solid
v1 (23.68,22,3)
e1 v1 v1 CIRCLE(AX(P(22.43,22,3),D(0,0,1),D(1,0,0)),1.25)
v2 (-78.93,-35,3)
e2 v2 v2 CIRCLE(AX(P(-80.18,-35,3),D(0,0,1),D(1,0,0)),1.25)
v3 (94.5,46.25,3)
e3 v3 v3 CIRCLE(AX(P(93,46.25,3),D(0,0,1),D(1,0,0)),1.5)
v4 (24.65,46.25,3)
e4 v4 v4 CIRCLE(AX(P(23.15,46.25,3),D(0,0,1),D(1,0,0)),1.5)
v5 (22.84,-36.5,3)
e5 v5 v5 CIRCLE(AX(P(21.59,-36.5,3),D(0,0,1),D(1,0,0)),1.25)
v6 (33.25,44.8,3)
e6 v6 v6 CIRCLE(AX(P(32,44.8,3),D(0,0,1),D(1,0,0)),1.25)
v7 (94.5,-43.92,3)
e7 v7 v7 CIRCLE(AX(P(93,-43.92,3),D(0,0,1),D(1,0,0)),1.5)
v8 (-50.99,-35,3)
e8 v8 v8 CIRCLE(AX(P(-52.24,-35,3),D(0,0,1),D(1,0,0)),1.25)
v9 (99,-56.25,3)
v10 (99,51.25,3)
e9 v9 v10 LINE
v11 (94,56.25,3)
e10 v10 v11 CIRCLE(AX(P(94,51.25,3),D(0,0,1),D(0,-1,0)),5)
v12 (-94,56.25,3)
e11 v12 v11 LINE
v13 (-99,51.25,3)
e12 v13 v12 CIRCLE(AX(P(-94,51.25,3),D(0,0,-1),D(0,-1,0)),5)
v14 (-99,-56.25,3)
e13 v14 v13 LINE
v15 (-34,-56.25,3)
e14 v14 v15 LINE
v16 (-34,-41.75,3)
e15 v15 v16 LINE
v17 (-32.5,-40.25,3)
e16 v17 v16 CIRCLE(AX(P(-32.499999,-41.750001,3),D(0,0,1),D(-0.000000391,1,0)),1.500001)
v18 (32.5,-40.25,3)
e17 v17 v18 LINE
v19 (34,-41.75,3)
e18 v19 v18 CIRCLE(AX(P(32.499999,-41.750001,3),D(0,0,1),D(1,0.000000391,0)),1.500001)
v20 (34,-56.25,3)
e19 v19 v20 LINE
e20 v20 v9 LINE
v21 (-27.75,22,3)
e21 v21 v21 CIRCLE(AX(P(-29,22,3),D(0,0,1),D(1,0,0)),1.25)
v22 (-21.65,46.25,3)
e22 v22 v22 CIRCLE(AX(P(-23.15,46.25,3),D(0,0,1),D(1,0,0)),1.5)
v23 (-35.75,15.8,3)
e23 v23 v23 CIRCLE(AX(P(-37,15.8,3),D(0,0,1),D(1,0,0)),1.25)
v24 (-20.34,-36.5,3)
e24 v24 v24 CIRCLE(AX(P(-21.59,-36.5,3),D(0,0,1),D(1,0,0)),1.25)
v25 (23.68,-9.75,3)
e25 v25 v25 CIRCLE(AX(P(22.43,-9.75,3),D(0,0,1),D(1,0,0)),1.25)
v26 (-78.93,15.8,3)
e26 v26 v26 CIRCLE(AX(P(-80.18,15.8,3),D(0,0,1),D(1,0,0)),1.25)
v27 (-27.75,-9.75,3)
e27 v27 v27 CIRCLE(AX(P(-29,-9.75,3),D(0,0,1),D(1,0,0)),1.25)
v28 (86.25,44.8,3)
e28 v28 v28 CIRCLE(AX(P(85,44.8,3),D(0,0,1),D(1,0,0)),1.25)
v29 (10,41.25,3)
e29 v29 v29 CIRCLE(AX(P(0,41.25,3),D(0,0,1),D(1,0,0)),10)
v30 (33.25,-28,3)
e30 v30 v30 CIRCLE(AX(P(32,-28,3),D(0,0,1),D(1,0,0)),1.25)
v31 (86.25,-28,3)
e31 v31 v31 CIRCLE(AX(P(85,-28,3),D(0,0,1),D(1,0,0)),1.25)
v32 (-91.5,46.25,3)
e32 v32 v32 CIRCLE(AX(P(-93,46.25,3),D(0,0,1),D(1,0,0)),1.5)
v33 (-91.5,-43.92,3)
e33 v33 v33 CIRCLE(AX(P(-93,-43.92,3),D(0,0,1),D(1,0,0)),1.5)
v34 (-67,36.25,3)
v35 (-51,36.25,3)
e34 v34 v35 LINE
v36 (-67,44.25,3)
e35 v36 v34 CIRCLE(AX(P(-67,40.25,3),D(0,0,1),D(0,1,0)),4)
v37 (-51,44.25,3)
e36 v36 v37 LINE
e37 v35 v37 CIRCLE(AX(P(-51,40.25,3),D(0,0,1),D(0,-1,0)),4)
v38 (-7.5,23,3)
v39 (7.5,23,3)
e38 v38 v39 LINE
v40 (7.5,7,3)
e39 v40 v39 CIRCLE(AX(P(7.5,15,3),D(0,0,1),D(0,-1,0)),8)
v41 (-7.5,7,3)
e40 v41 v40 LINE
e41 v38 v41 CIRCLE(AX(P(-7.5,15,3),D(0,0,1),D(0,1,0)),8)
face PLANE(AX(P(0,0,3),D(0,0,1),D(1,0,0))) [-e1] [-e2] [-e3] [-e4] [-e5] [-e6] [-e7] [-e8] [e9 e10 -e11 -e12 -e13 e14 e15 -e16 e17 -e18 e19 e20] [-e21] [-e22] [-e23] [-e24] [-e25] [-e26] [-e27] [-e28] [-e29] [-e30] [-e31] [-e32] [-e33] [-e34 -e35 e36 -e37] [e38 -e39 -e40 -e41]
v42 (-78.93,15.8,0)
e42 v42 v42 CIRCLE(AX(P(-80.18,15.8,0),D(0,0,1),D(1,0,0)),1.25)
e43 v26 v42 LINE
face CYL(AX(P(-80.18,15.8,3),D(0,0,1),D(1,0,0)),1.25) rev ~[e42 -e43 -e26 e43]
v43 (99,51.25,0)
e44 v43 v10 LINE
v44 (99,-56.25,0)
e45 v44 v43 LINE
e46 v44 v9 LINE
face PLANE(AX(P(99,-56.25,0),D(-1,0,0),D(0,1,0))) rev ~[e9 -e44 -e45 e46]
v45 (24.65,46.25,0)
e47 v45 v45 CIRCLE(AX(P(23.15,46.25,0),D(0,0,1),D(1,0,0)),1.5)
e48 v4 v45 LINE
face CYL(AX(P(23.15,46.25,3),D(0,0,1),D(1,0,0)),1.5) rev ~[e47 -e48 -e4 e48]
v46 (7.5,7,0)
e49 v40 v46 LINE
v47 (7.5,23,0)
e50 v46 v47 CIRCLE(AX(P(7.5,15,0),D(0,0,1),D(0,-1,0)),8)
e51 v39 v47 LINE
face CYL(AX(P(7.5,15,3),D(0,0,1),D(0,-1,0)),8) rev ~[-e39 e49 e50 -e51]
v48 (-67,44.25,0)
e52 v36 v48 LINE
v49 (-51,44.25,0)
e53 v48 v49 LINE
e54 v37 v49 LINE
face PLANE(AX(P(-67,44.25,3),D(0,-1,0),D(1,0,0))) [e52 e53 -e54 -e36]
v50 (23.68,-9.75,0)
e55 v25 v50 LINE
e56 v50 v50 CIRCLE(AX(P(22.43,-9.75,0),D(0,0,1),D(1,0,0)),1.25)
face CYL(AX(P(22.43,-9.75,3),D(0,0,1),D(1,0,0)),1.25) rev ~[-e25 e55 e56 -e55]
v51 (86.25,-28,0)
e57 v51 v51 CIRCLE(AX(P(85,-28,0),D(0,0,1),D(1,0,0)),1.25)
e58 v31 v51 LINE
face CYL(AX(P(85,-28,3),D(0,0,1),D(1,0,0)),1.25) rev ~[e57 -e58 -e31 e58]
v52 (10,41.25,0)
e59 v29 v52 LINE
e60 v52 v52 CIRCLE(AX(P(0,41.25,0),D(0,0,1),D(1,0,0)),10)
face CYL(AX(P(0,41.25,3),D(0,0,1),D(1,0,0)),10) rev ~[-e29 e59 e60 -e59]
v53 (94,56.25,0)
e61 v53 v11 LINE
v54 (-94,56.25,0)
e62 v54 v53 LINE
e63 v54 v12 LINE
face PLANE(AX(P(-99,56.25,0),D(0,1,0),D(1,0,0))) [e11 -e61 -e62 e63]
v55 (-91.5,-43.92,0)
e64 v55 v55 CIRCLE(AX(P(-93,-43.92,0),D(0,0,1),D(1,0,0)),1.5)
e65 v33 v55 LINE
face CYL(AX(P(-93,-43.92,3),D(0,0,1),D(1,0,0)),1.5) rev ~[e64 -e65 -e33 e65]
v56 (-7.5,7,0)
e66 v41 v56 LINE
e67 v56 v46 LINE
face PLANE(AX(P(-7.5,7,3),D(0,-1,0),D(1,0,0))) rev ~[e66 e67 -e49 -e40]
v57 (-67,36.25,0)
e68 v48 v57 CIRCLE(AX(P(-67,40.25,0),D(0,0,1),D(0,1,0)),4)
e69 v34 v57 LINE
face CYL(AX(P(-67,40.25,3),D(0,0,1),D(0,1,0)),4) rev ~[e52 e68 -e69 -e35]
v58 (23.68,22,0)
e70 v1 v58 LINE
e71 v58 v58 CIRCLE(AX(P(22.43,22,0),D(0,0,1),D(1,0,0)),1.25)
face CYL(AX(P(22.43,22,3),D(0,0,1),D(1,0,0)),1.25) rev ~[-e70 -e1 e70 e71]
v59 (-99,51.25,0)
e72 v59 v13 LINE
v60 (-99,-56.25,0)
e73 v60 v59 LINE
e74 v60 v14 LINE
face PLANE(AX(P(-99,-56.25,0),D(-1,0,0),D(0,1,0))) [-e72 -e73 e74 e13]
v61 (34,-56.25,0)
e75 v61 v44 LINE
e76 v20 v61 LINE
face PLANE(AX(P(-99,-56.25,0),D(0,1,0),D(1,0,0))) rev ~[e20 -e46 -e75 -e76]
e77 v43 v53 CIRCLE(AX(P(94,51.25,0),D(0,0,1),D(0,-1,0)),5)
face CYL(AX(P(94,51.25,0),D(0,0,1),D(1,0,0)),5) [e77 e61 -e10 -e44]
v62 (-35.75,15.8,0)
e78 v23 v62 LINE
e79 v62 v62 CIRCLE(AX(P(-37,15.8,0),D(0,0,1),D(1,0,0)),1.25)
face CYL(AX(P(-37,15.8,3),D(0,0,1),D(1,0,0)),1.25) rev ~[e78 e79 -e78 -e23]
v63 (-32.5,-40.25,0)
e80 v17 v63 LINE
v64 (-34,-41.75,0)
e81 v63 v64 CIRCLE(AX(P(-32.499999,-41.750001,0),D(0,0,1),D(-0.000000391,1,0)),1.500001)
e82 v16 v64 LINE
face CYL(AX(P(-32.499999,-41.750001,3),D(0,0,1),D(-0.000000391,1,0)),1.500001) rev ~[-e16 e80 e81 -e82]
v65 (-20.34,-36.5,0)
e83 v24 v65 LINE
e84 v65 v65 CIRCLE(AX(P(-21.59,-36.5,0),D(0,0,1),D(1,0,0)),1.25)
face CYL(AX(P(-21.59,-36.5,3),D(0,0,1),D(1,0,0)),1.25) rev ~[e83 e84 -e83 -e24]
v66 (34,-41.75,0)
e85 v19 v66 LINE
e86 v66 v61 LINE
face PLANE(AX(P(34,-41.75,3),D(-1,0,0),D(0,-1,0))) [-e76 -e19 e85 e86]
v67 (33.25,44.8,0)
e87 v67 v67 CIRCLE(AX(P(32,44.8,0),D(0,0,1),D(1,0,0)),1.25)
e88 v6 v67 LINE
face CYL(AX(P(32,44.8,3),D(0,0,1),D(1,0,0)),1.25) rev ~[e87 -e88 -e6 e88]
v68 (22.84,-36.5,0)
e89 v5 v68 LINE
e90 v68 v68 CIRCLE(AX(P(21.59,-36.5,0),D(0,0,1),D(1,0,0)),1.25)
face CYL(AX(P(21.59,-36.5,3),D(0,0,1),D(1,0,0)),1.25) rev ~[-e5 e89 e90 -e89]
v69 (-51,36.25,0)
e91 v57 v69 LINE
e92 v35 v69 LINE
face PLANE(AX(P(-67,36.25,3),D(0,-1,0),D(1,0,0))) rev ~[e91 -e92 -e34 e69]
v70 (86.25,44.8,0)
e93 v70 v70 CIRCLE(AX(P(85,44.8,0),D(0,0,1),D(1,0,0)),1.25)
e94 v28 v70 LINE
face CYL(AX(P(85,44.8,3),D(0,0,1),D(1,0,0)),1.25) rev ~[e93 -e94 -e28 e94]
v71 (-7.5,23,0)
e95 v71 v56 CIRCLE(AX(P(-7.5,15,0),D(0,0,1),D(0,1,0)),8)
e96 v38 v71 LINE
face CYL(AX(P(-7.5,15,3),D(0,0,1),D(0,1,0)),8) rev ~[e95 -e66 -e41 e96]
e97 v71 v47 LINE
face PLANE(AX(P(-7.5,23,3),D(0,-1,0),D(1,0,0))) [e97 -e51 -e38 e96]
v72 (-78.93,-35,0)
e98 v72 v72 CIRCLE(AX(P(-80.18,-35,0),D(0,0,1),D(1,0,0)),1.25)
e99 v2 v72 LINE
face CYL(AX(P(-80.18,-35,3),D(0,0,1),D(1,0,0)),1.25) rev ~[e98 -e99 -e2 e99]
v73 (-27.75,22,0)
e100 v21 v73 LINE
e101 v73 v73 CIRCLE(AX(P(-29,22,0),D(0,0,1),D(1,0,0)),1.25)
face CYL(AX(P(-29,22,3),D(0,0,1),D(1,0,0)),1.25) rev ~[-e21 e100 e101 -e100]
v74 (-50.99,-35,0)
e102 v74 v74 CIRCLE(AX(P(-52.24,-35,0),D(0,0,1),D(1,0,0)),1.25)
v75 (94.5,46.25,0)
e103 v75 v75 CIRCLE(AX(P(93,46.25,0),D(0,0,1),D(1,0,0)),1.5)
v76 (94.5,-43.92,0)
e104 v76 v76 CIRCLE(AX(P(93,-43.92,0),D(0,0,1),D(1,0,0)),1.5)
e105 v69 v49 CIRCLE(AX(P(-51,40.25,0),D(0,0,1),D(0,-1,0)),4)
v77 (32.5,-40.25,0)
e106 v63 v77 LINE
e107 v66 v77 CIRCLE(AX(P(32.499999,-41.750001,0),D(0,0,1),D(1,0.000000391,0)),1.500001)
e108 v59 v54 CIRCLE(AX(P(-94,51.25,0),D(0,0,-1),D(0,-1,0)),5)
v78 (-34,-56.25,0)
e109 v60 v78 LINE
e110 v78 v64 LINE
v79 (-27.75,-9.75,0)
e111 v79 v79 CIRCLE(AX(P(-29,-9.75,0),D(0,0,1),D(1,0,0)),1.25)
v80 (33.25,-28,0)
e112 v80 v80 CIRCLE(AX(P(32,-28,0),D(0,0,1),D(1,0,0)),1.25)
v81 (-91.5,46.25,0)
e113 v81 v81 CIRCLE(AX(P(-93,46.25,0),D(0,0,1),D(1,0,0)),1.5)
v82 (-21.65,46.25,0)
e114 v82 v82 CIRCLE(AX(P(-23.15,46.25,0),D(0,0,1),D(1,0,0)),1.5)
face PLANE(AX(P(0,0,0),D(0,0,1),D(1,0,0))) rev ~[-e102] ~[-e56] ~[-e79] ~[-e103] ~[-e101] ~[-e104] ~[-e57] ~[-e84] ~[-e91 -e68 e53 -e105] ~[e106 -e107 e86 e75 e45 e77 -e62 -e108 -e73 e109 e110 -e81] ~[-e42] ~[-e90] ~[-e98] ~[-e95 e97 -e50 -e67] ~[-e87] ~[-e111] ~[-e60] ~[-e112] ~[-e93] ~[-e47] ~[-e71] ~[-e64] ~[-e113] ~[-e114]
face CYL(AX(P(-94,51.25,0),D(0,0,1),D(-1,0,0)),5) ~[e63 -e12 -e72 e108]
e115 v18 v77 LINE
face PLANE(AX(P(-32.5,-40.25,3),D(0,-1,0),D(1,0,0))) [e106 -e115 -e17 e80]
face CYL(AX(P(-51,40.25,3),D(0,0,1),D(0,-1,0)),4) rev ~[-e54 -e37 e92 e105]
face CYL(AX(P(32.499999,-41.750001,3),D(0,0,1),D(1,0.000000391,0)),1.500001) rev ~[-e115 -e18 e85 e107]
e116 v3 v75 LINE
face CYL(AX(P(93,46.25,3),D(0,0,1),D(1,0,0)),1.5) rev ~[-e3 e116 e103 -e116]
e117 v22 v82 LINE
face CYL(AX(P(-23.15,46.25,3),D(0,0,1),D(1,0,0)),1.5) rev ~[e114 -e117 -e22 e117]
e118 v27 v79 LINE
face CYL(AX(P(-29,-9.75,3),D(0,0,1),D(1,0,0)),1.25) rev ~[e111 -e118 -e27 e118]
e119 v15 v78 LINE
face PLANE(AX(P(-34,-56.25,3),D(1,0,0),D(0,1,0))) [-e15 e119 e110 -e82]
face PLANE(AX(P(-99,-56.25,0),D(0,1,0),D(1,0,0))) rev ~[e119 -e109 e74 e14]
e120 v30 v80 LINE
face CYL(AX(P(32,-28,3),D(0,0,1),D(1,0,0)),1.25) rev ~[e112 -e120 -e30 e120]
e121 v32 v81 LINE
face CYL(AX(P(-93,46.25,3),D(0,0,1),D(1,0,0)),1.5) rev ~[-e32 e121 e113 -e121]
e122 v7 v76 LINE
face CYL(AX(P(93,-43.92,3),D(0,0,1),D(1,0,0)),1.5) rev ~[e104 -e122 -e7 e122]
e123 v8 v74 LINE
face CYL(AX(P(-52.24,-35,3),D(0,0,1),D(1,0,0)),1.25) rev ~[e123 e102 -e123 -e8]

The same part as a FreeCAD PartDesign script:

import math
import FreeCAD as App
import Part
import Sketcher

V = App.Vector
Q = App.Units.Quantity


def edges_at(feature, points):
    """Names of the edges that pass closest to the given points."""
    edges = feature.Shape.Edges
    near = lambda p: min(range(len(edges)), key=lambda i: edges[i].distToShape(Part.Vertex(*p))[0])
    return sorted({f"Edge{near(p) + 1}" for p in points})

doc = App.newDocument("Part")
body = doc.addObject("PartDesign::Body", "Body")

# Sketch on XY plane
sketch1 = body.newObject("Sketcher::SketchObject", "Sketch")
sketch1.AttachmentSupport = (doc.getObject("XY_Plane"), [""])
sketch1.MapMode = "FlatFace"
sketch1.addGeometry([
    Part.LineSegment(V(-99, 56.25, 0), V(-99, -56.25, 0)),
    Part.LineSegment(V(-99, -56.25, 0), V(99, -56.25, 0)),
    Part.LineSegment(V(99, -56.25, 0), V(99, 56.25, 0)),
    Part.LineSegment(V(99, 56.25, 0), V(-99, 56.25, 0)),
], False)
sketch1.addConstraint([
    Sketcher.Constraint("Coincident", 0, 2, 1, 1),
    Sketcher.Constraint("Coincident", 1, 2, 2, 1),
    Sketcher.Constraint("Coincident", 2, 2, 3, 1),
    Sketcher.Constraint("Coincident", 3, 2, 0, 1),
    Sketcher.Constraint("Vertical", 0),
    Sketcher.Constraint("Horizontal", 1),
    Sketcher.Constraint("Vertical", 2),
    Sketcher.Constraint("Horizontal", 3),
    Sketcher.Constraint("Symmetric", 0, 2, 2, 2, -1, 1),
    Sketcher.Constraint("DistanceX", 1, 1, 1, 2, Q("198 mm")),
    Sketcher.Constraint("DistanceY", 0, 2, 0, 1, Q("112.5 mm")),
])
pad1 = body.newObject("PartDesign::Pad", "Pad")
pad1.Profile = sketch1
pad1.Length = 3
doc.recompute()

fillet = body.newObject("PartDesign::Fillet", "Fillet")
fillet.Base = (pad1, edges_at(pad1, [(-99, 56.25, 1.5), (99, 56.25, 1.5)]))
fillet.Radius = 5

# Sketch on XY plane
sketch2 = body.newObject("Sketcher::SketchObject", "Sketch001")
sketch2.AttachmentSupport = (doc.getObject("XY_Plane"), [""])
sketch2.MapMode = "FlatFace"
sketch2.AttachmentOffset = App.Placement(V(0, 0, 3), App.Rotation())
sketch2.addGeometry([
    Part.Circle(V(-93, 46.25, 0), V(0, 0, 1), 1.5),  # 0
    Part.Circle(V(-93, -43.92, 0), V(0, 0, 1), 1.5),  # 1
    Part.Circle(V(93, 46.25, 0), V(0, 0, 1), 1.5),  # 2
    Part.Circle(V(93, -43.92, 0), V(0, 0, 1), 1.5),  # 3
    Part.Circle(V(-23.15, 46.25, 0), V(0, 0, 1), 1.5),  # 4
    Part.Circle(V(23.15, 46.25, 0), V(0, 0, 1), 1.5),  # 5
    Part.Circle(V(0, 41.25, 0), V(0, 0, 1), 10),  # 6
    Part.Circle(V(-21.59, -36.5, 0), V(0, 0, 1), 1.25),  # 7
    Part.Circle(V(21.59, -36.5, 0), V(0, 0, 1), 1.25),  # 8
    Part.Circle(V(-29, 22, 0), V(0, 0, 1), 1.25),  # 9
    Part.Circle(V(-29, -9.75, 0), V(0, 0, 1), 1.25),  # 10
    Part.Circle(V(22.43, -9.75, 0), V(0, 0, 1), 1.25),  # 11
    Part.Circle(V(22.43, 22, 0), V(0, 0, 1), 1.25),  # 12
    Part.Circle(V(-80.18, 15.8, 0), V(0, 0, 1), 1.25),  # 13
    Part.Circle(V(-37, 15.8, 0), V(0, 0, 1), 1.25),  # 14
    Part.Circle(V(-80.18, -35, 0), V(0, 0, 1), 1.25),  # 15
    Part.Circle(V(32, 44.8, 0), V(0, 0, 1), 1.25),  # 16
    Part.Circle(V(85, 44.8, 0), V(0, 0, 1), 1.25),  # 17
    Part.Circle(V(32, -28, 0), V(0, 0, 1), 1.25),  # 18
    Part.Circle(V(85, -28, 0), V(0, 0, 1), 1.25),  # 19
    Part.Circle(V(-52.24, -35, 0), V(0, 0, 1), 1.25),  # 20
    Part.LineSegment(V(32.5, -40.25, 0), V(-32.5, -40.25, 0)),  # 21
    Part.ArcOfCircle(Part.Circle(V(-32.499999, -41.750001, 0), V(0, 0, 1), 1.500001), math.radians(90.000022), math.radians(179.999978)),  # 22
    Part.LineSegment(V(-34, -41.75, 0), V(-34, -56.25, 0)),  # 23
    Part.LineSegment(V(-34, -56.25, 0), V(34, -56.25, 0)),  # 24
    Part.LineSegment(V(34, -56.25, 0), V(34, -41.75, 0)),  # 25
    Part.ArcOfCircle(Part.Circle(V(32.499999, -41.750001, 0), V(0, 0, 1), 1.500001), math.radians(0.000022), math.radians(89.999978)),  # 26
    Part.ArcOfCircle(Part.Circle(V(-67, 40.25, 0), V(0, 0, 1), 4), math.radians(90), math.radians(270)),  # 27
    Part.LineSegment(V(-67, 36.25, 0), V(-51, 36.25, 0)),  # 28
    Part.ArcOfCircle(Part.Circle(V(-51, 40.25, 0), V(0, 0, 1), 4), math.radians(-90), math.radians(90)),  # 29
    Part.LineSegment(V(-51, 44.25, 0), V(-67, 44.25, 0)),  # 30
    Part.ArcOfCircle(Part.Circle(V(-7.5, 15, 0), V(0, 0, 1), 8), math.radians(90), math.radians(270)),  # 31
    Part.LineSegment(V(-7.5, 7, 0), V(7.5, 7, 0)),  # 32
    Part.ArcOfCircle(Part.Circle(V(7.5, 15, 0), V(0, 0, 1), 8), math.radians(-90), math.radians(90)),  # 33
    Part.LineSegment(V(7.5, 23, 0), V(-7.5, 23, 0)),  # 34
], False)
sketch2.addConstraint([
    Sketcher.Constraint("Tangent", 21, 2, 22, 1),
    Sketcher.Constraint("Tangent", 22, 2, 23, 1),
    Sketcher.Constraint("Coincident", 23, 2, 24, 1),
    Sketcher.Constraint("Coincident", 24, 2, 25, 1),
    Sketcher.Constraint("Tangent", 25, 2, 26, 1),
    Sketcher.Constraint("Tangent", 26, 2, 21, 1),
    Sketcher.Constraint("Tangent", 27, 2, 28, 1),
    Sketcher.Constraint("Tangent", 28, 2, 29, 1),
    Sketcher.Constraint("Tangent", 29, 2, 30, 1),
    Sketcher.Constraint("Tangent", 30, 2, 27, 1),
    Sketcher.Constraint("Tangent", 31, 2, 32, 1),
    Sketcher.Constraint("Tangent", 32, 2, 33, 1),
    Sketcher.Constraint("Tangent", 33, 2, 34, 1),
    Sketcher.Constraint("Tangent", 34, 2, 31, 1),
    Sketcher.Constraint("Horizontal", 21),
    Sketcher.Constraint("Vertical", 23),
    Sketcher.Constraint("Horizontal", 24),
    Sketcher.Constraint("Vertical", 25),
    Sketcher.Constraint("Horizontal", 28),
    Sketcher.Constraint("Horizontal", 30),
    Sketcher.Constraint("Horizontal", 32),
    Sketcher.Constraint("Horizontal", 34),
    Sketcher.Constraint("Equal", 0, 1),
    Sketcher.Constraint("Equal", 1, 2),
    Sketcher.Constraint("Equal", 2, 3),
    Sketcher.Constraint("Equal", 3, 4),
    Sketcher.Constraint("Equal", 4, 5),
    Sketcher.Constraint("Equal", 7, 8),
    Sketcher.Constraint("Equal", 8, 9),
    Sketcher.Constraint("Equal", 9, 10),
    Sketcher.Constraint("Equal", 10, 11),
    Sketcher.Constraint("Equal", 11, 12),
    Sketcher.Constraint("Equal", 12, 13),
    Sketcher.Constraint("Equal", 13, 14),
    Sketcher.Constraint("Equal", 14, 15),
    Sketcher.Constraint("Equal", 15, 16),
    Sketcher.Constraint("Equal", 16, 17),
    Sketcher.Constraint("Equal", 17, 18),
    Sketcher.Constraint("Equal", 18, 19),
    Sketcher.Constraint("Equal", 19, 20),
    Sketcher.Constraint("Equal", 5, 22),
    Sketcher.Constraint("Equal", 22, 26),
    Sketcher.Constraint("Symmetric", 0, 3, 2, 3, -2),
    Sketcher.Constraint("Symmetric", 1, 3, 3, 3, -2),
    Sketcher.Constraint("Symmetric", 4, 3, 5, 3, -2),
    Sketcher.Constraint("Symmetric", 7, 3, 8, 3, -2),
    Sketcher.Constraint("PointOnObject", 6, 3, -2),
    Sketcher.Constraint("Horizontal", 2, 3, 4, 3),
    Sketcher.Constraint("Horizontal", 10, 3, 11, 3),
    Sketcher.Constraint("Horizontal", 9, 3, 12, 3),
    Sketcher.Constraint("Horizontal", 13, 3, 14, 3),
    Sketcher.Constraint("Horizontal", 16, 3, 17, 3),
    Sketcher.Constraint("Horizontal", 18, 3, 19, 3),
    Sketcher.Constraint("Horizontal", 15, 3, 20, 3),
    Sketcher.Constraint("Vertical", 0, 3, 1, 3),
    Sketcher.Constraint("Vertical", 9, 3, 10, 3),
    Sketcher.Constraint("Vertical", 11, 3, 12, 3),
    Sketcher.Constraint("Vertical", 13, 3, 15, 3),
    Sketcher.Constraint("Vertical", 16, 3, 18, 3),
    Sketcher.Constraint("Vertical", 17, 3, 19, 3),
    Sketcher.Constraint("Diameter", 0, Q("3 mm")),
    Sketcher.Constraint("Diameter", 6, Q("20 mm")),
    Sketcher.Constraint("Radius", 27, Q("4 mm")),
    Sketcher.Constraint("Radius", 31, Q("8 mm")),
    Sketcher.Constraint("Diameter", 7, Q("2.5 mm")),
    Sketcher.Constraint("DistanceX", 21, 2, 21, 1, Q("65 mm")),
    Sketcher.Constraint("DistanceX", 28, 1, 28, 2, Q("16 mm")),
    Sketcher.Constraint("DistanceX", 32, 1, 32, 2, Q("15 mm")),
    Sketcher.Constraint("DistanceY", 23, 2, 23, 1, Q("14.5 mm")),
    Sketcher.Constraint("DistanceX", 0, 3, -1, 1, Q("93 mm")),
    Sketcher.Constraint("DistanceX", 9, 3, -1, 1, Q("29 mm")),
    Sketcher.Constraint("DistanceY", -1, 1, 9, 3, Q("22 mm")),
    Sketcher.Constraint("DistanceX", 14, 3, -1, 1, Q("37 mm")),
    Sketcher.Constraint("DistanceY", 15, 3, -1, 1, Q("35 mm")),
    Sketcher.Constraint("DistanceX", -1, 1, 16, 3, Q("32 mm")),
    Sketcher.Constraint("DistanceX", -1, 1, 17, 3, Q("85 mm")),
    Sketcher.Constraint("DistanceY", 18, 3, -1, 1, Q("28 mm")),
    Sketcher.Constraint("DistanceX", 27, 3, -1, 1, Q("67 mm")),
    Sketcher.Constraint("DistanceY", -1, 1, 31, 3, Q("15 mm")),
    Sketcher.Constraint("DistanceX", 22, 2, -1, 1, Q("34 mm")),
    Sketcher.Constraint("DistanceY", 6, 3, 4, 3, Q("5 mm")),
    Sketcher.Constraint("DistanceY", 10, 3, 4, 3, Q("56 mm")),
    Sketcher.Constraint("DistanceY", 22, 3, 10, 3, Q("32.000001 mm")),
    Sketcher.Constraint("DistanceY", 27, 3, 0, 3, Q("6 mm")),
    Sketcher.Constraint("DistanceY", 7, 3, -1, 1, Q("36.5 mm")),
    Sketcher.Constraint("DistanceY", -1, 1, 13, 3, Q("15.8 mm")),
    Sketcher.Constraint("DistanceY", -1, 1, 16, 3, Q("44.8 mm")),
    Sketcher.Constraint("DistanceX", 31, 3, -1, 1, Q("7.5 mm")),
    Sketcher.Constraint("DistanceX", 4, 3, 5, 3, Q("46.3 mm")),
    Sketcher.Constraint("DistanceY", -1, 1, 0, 3, Q("46.25 mm")),
    Sketcher.Constraint("DistanceY", 1, 3, -1, 1, Q("43.92 mm")),
    Sketcher.Constraint("DistanceX", 7, 3, -1, 1, Q("21.59 mm")),
    Sketcher.Constraint("DistanceX", -1, 1, 11, 3, Q("22.43 mm")),
    Sketcher.Constraint("DistanceX", 13, 3, -1, 1, Q("80.18 mm")),
    Sketcher.Constraint("DistanceX", 20, 3, -1, 1, Q("52.24 mm")),
])
pocket1 = body.newObject("PartDesign::Pocket", "Pocket")
pocket1.Profile = sketch2
pocket1.Type = "ThroughAll"

doc.recompute()
